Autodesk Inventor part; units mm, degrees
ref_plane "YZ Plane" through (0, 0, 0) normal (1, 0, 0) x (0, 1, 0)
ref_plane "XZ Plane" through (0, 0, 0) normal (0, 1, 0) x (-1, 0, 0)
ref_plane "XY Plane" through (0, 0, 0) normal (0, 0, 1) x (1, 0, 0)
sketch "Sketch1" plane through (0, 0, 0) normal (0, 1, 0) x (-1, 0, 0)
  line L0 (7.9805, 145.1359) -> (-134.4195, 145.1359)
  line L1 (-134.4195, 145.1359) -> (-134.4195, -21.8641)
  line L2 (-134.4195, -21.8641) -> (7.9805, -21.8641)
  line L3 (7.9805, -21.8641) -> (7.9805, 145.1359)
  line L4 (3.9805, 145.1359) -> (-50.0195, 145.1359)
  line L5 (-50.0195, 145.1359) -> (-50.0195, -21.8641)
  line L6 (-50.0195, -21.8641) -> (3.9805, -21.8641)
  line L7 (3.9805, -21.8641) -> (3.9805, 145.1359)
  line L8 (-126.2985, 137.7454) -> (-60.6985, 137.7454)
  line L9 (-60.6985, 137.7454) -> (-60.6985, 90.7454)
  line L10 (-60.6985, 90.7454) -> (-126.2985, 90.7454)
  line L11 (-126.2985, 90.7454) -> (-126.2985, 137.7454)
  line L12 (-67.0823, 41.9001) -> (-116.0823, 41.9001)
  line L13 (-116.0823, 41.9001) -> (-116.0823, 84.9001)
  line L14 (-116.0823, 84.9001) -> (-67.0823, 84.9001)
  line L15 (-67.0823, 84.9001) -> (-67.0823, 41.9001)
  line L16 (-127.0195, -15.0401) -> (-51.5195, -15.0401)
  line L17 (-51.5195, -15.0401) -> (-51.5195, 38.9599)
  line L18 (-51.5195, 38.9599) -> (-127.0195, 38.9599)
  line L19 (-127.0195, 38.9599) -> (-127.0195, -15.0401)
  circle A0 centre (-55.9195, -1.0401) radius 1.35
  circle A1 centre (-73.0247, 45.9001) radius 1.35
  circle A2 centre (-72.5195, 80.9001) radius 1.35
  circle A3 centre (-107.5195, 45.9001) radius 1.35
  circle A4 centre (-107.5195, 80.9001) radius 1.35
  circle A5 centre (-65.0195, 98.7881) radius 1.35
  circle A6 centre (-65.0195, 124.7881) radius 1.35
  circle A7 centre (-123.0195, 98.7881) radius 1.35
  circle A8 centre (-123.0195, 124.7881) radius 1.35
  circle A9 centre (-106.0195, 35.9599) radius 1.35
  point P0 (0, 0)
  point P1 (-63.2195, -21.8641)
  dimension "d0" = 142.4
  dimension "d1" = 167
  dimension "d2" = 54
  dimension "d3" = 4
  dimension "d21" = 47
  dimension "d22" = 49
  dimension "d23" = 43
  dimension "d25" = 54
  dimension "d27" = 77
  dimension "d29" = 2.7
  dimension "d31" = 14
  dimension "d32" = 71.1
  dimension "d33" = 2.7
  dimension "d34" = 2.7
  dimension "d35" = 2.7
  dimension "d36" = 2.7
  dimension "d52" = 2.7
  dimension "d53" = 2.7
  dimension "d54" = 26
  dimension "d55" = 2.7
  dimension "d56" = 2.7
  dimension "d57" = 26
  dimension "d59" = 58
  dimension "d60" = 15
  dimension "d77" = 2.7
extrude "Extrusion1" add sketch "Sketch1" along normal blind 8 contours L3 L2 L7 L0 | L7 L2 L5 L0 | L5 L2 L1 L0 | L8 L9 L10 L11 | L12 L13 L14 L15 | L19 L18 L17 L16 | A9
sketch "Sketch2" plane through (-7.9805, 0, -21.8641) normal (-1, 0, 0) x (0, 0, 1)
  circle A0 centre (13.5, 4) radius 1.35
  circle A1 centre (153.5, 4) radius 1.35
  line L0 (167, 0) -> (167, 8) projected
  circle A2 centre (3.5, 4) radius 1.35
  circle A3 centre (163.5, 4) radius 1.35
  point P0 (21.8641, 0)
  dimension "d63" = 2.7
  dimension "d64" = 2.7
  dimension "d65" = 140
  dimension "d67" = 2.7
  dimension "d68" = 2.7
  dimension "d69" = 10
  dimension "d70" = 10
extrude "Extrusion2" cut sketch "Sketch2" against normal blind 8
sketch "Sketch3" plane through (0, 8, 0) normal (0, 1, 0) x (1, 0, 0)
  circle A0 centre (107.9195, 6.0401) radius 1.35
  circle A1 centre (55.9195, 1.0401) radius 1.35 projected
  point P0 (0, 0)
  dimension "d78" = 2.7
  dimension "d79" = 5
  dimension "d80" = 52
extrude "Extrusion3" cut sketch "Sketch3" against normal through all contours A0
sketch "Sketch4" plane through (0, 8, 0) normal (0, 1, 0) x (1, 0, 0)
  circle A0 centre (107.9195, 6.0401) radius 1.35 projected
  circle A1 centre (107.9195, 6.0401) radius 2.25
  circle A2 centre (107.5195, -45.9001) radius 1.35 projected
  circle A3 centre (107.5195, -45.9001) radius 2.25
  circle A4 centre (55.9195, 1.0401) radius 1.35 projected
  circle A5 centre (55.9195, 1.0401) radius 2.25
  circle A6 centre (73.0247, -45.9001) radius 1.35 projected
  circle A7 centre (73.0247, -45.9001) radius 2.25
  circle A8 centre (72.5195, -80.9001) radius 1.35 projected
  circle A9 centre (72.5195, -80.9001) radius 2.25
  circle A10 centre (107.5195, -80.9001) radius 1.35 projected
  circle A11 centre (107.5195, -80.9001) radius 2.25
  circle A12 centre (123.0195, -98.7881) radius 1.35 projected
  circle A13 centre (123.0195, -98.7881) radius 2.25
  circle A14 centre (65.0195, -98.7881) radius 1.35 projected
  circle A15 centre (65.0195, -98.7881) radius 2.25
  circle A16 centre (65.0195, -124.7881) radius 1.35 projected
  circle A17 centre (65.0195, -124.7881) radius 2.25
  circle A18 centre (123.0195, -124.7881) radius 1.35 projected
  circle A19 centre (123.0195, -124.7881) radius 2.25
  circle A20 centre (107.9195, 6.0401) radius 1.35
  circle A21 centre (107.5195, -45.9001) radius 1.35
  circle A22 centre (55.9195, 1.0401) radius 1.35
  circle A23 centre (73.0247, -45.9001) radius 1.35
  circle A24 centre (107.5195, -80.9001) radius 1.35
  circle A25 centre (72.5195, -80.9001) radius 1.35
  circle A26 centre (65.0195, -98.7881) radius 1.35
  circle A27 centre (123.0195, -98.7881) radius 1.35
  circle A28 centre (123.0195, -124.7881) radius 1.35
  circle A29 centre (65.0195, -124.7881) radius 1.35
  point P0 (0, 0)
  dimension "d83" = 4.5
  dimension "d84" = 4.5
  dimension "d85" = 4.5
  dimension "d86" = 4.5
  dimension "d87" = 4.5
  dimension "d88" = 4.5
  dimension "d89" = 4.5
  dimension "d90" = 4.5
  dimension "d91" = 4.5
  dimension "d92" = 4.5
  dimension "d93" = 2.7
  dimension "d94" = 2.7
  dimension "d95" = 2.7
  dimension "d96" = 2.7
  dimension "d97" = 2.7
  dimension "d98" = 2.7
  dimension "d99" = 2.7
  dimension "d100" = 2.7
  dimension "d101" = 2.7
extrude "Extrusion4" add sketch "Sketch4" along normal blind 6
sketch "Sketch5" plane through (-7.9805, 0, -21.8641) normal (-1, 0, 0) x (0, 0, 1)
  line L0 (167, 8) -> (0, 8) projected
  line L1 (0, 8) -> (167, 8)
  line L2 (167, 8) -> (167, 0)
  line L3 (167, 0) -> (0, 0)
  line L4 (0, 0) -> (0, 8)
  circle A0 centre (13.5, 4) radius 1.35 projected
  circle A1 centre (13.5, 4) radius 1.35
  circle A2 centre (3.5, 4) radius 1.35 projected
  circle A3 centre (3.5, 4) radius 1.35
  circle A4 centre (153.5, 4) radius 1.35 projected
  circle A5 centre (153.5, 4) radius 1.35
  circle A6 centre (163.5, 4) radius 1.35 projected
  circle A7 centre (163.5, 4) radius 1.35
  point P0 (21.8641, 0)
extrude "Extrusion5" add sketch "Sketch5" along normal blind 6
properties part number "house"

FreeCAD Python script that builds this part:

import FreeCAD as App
import Part
import Sketcher


def add_polygon(sketch, points):
    """Adds a closed chain of lines whose ends are joined by coincident constraints."""
    first, n = sketch.GeometryCount, len(points)
    for a, b in zip(points, points[1:] + points[:1]):
        sketch.addGeometry(Part.LineSegment(App.Vector(*a, 0), App.Vector(*b, 0)), False)
    for i in range(n):
        sketch.addConstraint(Sketcher.Constraint("Coincident", first + i, 2, first + (i + 1) % n, 1))

doc = App.newDocument("Part")
body = doc.addObject("PartDesign::Body", "Body")

# Sketch on XZ plane
sketch1 = body.newObject("Sketcher::SketchObject", "Sketch")
sketch1.AttachmentSupport = (doc.getObject("XZ_Plane"), [""])
sketch1.MapMode = "FlatFace"
add_polygon(sketch1, [(-7.9805, -21.8641), (-7.9805, 145.1359), (134.4195, 145.1359), (134.4195, -21.8641)])  # lines 0-3
sketch1.addGeometry(Part.Circle(App.Vector(65.0195, 124.7881, 0), App.Vector(0, 0, 1), 1.35), False)  # 4
sketch1.addGeometry(Part.Circle(App.Vector(123.0195, 98.7881, 0), App.Vector(0, 0, 1), 1.35), False)  # 5
sketch1.addGeometry(Part.Circle(App.Vector(65.0195, 98.7881, 0), App.Vector(0, 0, 1), 1.35), False)  # 6
sketch1.addGeometry(Part.Circle(App.Vector(123.0195, 124.7881, 0), App.Vector(0, 0, 1), 1.35), False)  # 7
sketch1.addGeometry(Part.Circle(App.Vector(55.9195, -1.0401, 0), App.Vector(0, 0, 1), 1.35), False)  # 8
sketch1.addGeometry(Part.Circle(App.Vector(107.5195, 45.9001, 0), App.Vector(0, 0, 1), 1.35), False)  # 9
sketch1.addGeometry(Part.Circle(App.Vector(73.0247, 45.9001, 0), App.Vector(0, 0, 1), 1.35), False)  # 10
sketch1.addGeometry(Part.Circle(App.Vector(107.5195, 80.9001, 0), App.Vector(0, 0, 1), 1.35), False)  # 11
sketch1.addGeometry(Part.Circle(App.Vector(72.5195, 80.9001, 0), App.Vector(0, 0, 1), 1.35), False)  # 12
sketch1.addConstraint([
    Sketcher.Constraint("Vertical", 0),
    Sketcher.Constraint("Horizontal", 1),
    Sketcher.Constraint("Vertical", 2),
    Sketcher.Constraint("Horizontal", 3),
    Sketcher.Constraint("Equal", 4, 5),
    Sketcher.Constraint("Equal", 5, 6),
    Sketcher.Constraint("Equal", 6, 7),
    Sketcher.Constraint("Equal", 7, 8),
    Sketcher.Constraint("Equal", 8, 9),
    Sketcher.Constraint("Equal", 9, 10),
    Sketcher.Constraint("Equal", 10, 11),
    Sketcher.Constraint("Equal", 11, 12),
    Sketcher.Constraint("Horizontal", 5, 3, 6, 3),
    Sketcher.Constraint("Horizontal", 4, 3, 7, 3),
    Sketcher.Constraint("Horizontal", 9, 3, 10, 3),
    Sketcher.Constraint("Horizontal", 11, 3, 12, 3),
    Sketcher.Constraint("Vertical", 4, 3, 6, 3),
    Sketcher.Constraint("Vertical", 5, 3, 7, 3),
    Sketcher.Constraint("Vertical", 9, 3, 11, 3),
    Sketcher.Constraint("Diameter", 4, 2.7),
    Sketcher.Constraint("DistanceY", 0, 1, 0, 2, 167.0),
    Sketcher.Constraint("DistanceX", 1, 1, 1, 2, 142.4),
    Sketcher.Constraint("DistanceX", 4, 3, 5, 3, 58.0),
    Sketcher.Constraint("DistanceY", 5, 3, 4, 3, 26.0),
    Sketcher.Constraint("DistanceY", 9, 3, 11, 3, 35.0),
    Sketcher.Constraint("DistanceX", 12, 3, 11, 3, 35.0),
    Sketcher.Constraint("DistanceX", 0, 2, 4, 3, 73.0),
    Sketcher.Constraint("DistanceY", -1, 1, 9, 3, 45.9),
    Sketcher.Constraint("DistanceX", 8, 3, 6, 3, 9.1),
    Sketcher.Constraint("DistanceX", 9, 3, 5, 3, 15.5),
    Sketcher.Constraint("DistanceY", 8, 3, -1, 1, 1.04),
    Sketcher.Constraint("DistanceY", -1, 1, 4, 3, 124.788),
    Sketcher.Constraint("DistanceY", -1, 1, 0, 2, 145.136),
    Sketcher.Constraint("DistanceX", -1, 1, 4, 3, 65.0195),
    Sketcher.Constraint("DistanceX", -1, 1, 10, 3, 73.0247),
])
pad1 = body.newObject("PartDesign::Pad", "Pad")
pad1.Profile = sketch1
pad1.Length = 8
pad1.Reversed = True

# Sketch on YZ plane
sketch2 = body.newObject("Sketcher::SketchObject", "Sketch001")
sketch2.AttachmentSupport = (doc.getObject("YZ_Plane"), [""])
sketch2.MapMode = "FlatFace"
sketch2.AttachmentOffset = App.Placement(App.Vector(0, 0, -7.9805), App.Rotation())
sketch2.addGeometry([
    Part.Circle(App.Vector(4, -8.3641, 0), App.Vector(0, 0, 1), 1.35),
    Part.Circle(App.Vector(4, 131.6359, 0), App.Vector(0, 0, 1), 1.35),
    Part.Circle(App.Vector(4, -18.3641, 0), App.Vector(0, 0, 1), 1.35),
    Part.Circle(App.Vector(4, 141.6359, 0), App.Vector(0, 0, 1), 1.35),
], False)
sketch2.addConstraint([
    Sketcher.Constraint("Equal", 0, 1),
    Sketcher.Constraint("Equal", 1, 2),
    Sketcher.Constraint("Equal", 2, 3),
    Sketcher.Constraint("Vertical", 0, 3, 1, 3),
    Sketcher.Constraint("Vertical", 1, 3, 2, 3),
    Sketcher.Constraint("Vertical", 2, 3, 3, 3),
    Sketcher.Constraint("Diameter", 0, 2.7),
    Sketcher.Constraint("DistanceY", 0, 3, 1, 3, 140.0),
    Sketcher.Constraint("DistanceY", 2, 3, 0, 3, 10.0),
    Sketcher.Constraint("DistanceY", 1, 3, 3, 3, 10.0),
    Sketcher.Constraint("DistanceX", -1, 1, 0, 3, 4.0),
    Sketcher.Constraint("DistanceY", 0, 3, -1, 1, 8.364),
])
pocket1 = body.newObject("PartDesign::Pocket", "Pocket")
pocket1.Profile = sketch2
pocket1.Length = 8
pocket1.Reversed = True

# Sketch on XZ plane
sketch3 = body.newObject("Sketcher::SketchObject", "Sketch002")
sketch3.AttachmentSupport = (doc.getObject("XZ_Plane"), [""])
sketch3.MapMode = "FlatFace"
sketch3.AttachmentOffset = App.Placement(App.Vector(0, 0, -8), App.Rotation())
sketch3.addGeometry(Part.Circle(App.Vector(107.9195, -6.0401, 0), App.Vector(0, 0, 1), 1.35), False)
sketch3.addConstraint([
    Sketcher.Constraint("Diameter", 0, 2.7),
    Sketcher.Constraint("DistanceY", 0, 3, -1, 1, 6.04),
    Sketcher.Constraint("DistanceX", -1, 1, 0, 3, 107.9195),
])
pocket2 = body.newObject("PartDesign::Pocket", "Pocket001")
pocket2.Profile = sketch3
pocket2.Type = "ThroughAll"
pocket2.Reversed = True

# Sketch on XZ plane
sketch4 = body.newObject("Sketcher::SketchObject", "Sketch003")
sketch4.AttachmentSupport = (doc.getObject("XZ_Plane"), [""])
sketch4.MapMode = "FlatFace"
sketch4.AttachmentOffset = App.Placement(App.Vector(0, 0, -8), App.Rotation())
sketch4.addGeometry([
    Part.Circle(App.Vector(107.9195, -6.0401, 0), App.Vector(0, 0, 1), 2.25),  # 0
    Part.Circle(App.Vector(107.9195, -6.0401, 0), App.Vector(0, 0, 1), 1.35),  # 1
    Part.Circle(App.Vector(107.5195, 45.9001, 0), App.Vector(0, 0, 1), 2.25),  # 2
    Part.Circle(App.Vector(107.5195, 45.9001, 0), App.Vector(0, 0, 1), 1.35),  # 3
    Part.Circle(App.Vector(55.9195, -1.0401, 0), App.Vector(0, 0, 1), 2.25),  # 4
    Part.Circle(App.Vector(55.9195, -1.0401, 0), App.Vector(0, 0, 1), 1.35),  # 5
    Part.Circle(App.Vector(73.0247, 45.9001, 0), App.Vector(0, 0, 1), 2.25),  # 6
    Part.Circle(App.Vector(73.0247, 45.9001, 0), App.Vector(0, 0, 1), 1.35),  # 7
    Part.Circle(App.Vector(72.5195, 80.9001, 0), App.Vector(0, 0, 1), 2.25),  # 8
    Part.Circle(App.Vector(72.5195, 80.9001, 0), App.Vector(0, 0, 1), 1.35),  # 9
    Part.Circle(App.Vector(107.5195, 80.9001, 0), App.Vector(0, 0, 1), 2.25),  # 10
    Part.Circle(App.Vector(107.5195, 80.9001, 0), App.Vector(0, 0, 1), 1.35),  # 11
    Part.Circle(App.Vector(123.0195, 98.7881, 0), App.Vector(0, 0, 1), 2.25),  # 12
    Part.Circle(App.Vector(123.0195, 98.7881, 0), App.Vector(0, 0, 1), 1.35),  # 13
    Part.Circle(App.Vector(65.0195, 98.7881, 0), App.Vector(0, 0, 1), 2.25),  # 14
    Part.Circle(App.Vector(65.0195, 98.7881, 0), App.Vector(0, 0, 1), 1.35),  # 15
    Part.Circle(App.Vector(65.0195, 124.7881, 0), App.Vector(0, 0, 1), 2.25),  # 16
    Part.Circle(App.Vector(65.0195, 124.7881, 0), App.Vector(0, 0, 1), 1.35),  # 17
    Part.Circle(App.Vector(123.0195, 124.7881, 0), App.Vector(0, 0, 1), 2.25),  # 18
    Part.Circle(App.Vector(123.0195, 124.7881, 0), App.Vector(0, 0, 1), 1.35),  # 19
], False)
sketch4.addConstraint([
    Sketcher.Constraint("Coincident", 1, 3, 0, 3),
    Sketcher.Constraint("Coincident", 3, 3, 2, 3),
    Sketcher.Constraint("Coincident", 5, 3, 4, 3),
    Sketcher.Constraint("Coincident", 7, 3, 6, 3),
    Sketcher.Constraint("Coincident", 9, 3, 8, 3),
    Sketcher.Constraint("Coincident", 11, 3, 10, 3),
    Sketcher.Constraint("Coincident", 13, 3, 12, 3),
    Sketcher.Constraint("Coincident", 15, 3, 14, 3),
    Sketcher.Constraint("Coincident", 17, 3, 16, 3),
    Sketcher.Constraint("Coincident", 19, 3, 18, 3),
    Sketcher.Constraint("Equal", 0, 2),
    Sketcher.Constraint("Equal", 1, 3),
    Sketcher.Constraint("Equal", 2, 4),
    Sketcher.Constraint("Equal", 3, 5),
    Sketcher.Constraint("Equal", 4, 6),
    Sketcher.Constraint("Equal", 5, 7),
    Sketcher.Constraint("Equal", 6, 8),
    Sketcher.Constraint("Equal", 7, 9),
    Sketcher.Constraint("Equal", 8, 10),
    Sketcher.Constraint("Equal", 9, 11),
    Sketcher.Constraint("Equal", 10, 12),
    Sketcher.Constraint("Equal", 11, 13),
    Sketcher.Constraint("Equal", 12, 14),
    Sketcher.Constraint("Equal", 13, 15),
    Sketcher.Constraint("Equal", 14, 16),
    Sketcher.Constraint("Equal", 15, 17),
    Sketcher.Constraint("Equal", 16, 18),
    Sketcher.Constraint("Equal", 17, 19),
    Sketcher.Constraint("Horizontal", 3, 3, 6, 3),
    Sketcher.Constraint("Horizontal", 9, 3, 10, 3),
    Sketcher.Constraint("Horizontal", 13, 3, 14, 3),
    Sketcher.Constraint("Horizontal", 17, 3, 18, 3),
    Sketcher.Constraint("Vertical", 3, 3, 10, 3),
    Sketcher.Constraint("Vertical", 15, 3, 16, 3),
    Sketcher.Constraint("Vertical", 13, 3, 18, 3),
    Sketcher.Constraint("Diameter", 0, 4.5),
    Sketcher.Constraint("Diameter", 1, 2.7),
    Sketcher.Constraint("DistanceX", 4, 3, 0, 3, 52.0),
    Sketcher.Constraint("DistanceY", 0, 3, 4, 3, 5.0),
    Sketcher.Constraint("DistanceY", 6, 3, 8, 3, 35.0),
    Sketcher.Constraint("DistanceX", 8, 3, 2, 3, 35.0),
    Sketcher.Constraint("DistanceY", 14, 3, 16, 3, 26.0),
    Sketcher.Constraint("DistanceX", 16, 3, 18, 3, 58.0),
    Sketcher.Constraint("DistanceY", -1, 1, 2, 3, 45.9),
    Sketcher.Constraint("DistanceX", 2, 3, 0, 3, 0.4),
    Sketcher.Constraint("DistanceX", 10, 3, 12, 3, 15.5),
    Sketcher.Constraint("DistanceY", 0, 3, -1, 1, 6.04),
    Sketcher.Constraint("DistanceY", -1, 1, 12, 3, 98.788),
    Sketcher.Constraint("DistanceX", -1, 1, 0, 3, 107.9195),
    Sketcher.Constraint("DistanceX", -1, 1, 6, 3, 73.0247),
])
pad2 = body.newObject("PartDesign::Pad", "Pad001")
pad2.Profile = sketch4
pad2.Length = 6
pad2.Reversed = True

# Sketch on YZ plane
sketch5 = body.newObject("Sketcher::SketchObject", "Sketch004")
sketch5.AttachmentSupport = (doc.getObject("YZ_Plane"), [""])
sketch5.MapMode = "FlatFace"
sketch5.AttachmentOffset = App.Placement(App.Vector(0, 0, -7.9805), App.Rotation())
add_polygon(sketch5, [(0, 145.1359), (8, 145.1359), (8, -21.8641), (0, -21.8641)])  # lines 0-3
sketch5.addGeometry(Part.Circle(App.Vector(4, -18.3641, 0), App.Vector(0, 0, 1), 1.35), False)  # 4
sketch5.addGeometry(Part.Circle(App.Vector(4, -8.3641, 0), App.Vector(0, 0, 1), 1.35), False)  # 5
sketch5.addGeometry(Part.Circle(App.Vector(4, 131.6359, 0), App.Vector(0, 0, 1), 1.35), False)  # 6
sketch5.addGeometry(Part.Circle(App.Vector(4, 141.6359, 0), App.Vector(0, 0, 1), 1.35), False)  # 7
sketch5.addConstraint([
    Sketcher.Constraint("Horizontal", 0),
    Sketcher.Constraint("Vertical", 1),
    Sketcher.Constraint("Horizontal", 2),
    Sketcher.Constraint("Vertical", 3),
    Sketcher.Constraint("Equal", 4, 5),
    Sketcher.Constraint("Equal", 5, 6),
    Sketcher.Constraint("Equal", 6, 7),
    Sketcher.Constraint("PointOnObject", 2, 2, -2),
    Sketcher.Constraint("Vertical", 4, 3, 5, 3),
    Sketcher.Constraint("Vertical", 5, 3, 6, 3),
    Sketcher.Constraint("Vertical", 6, 3, 7, 3),
    Sketcher.Constraint("Diameter", 4, 2.7),
    Sketcher.Constraint("DistanceX", 0, 1, 0, 2, 8.0),
    Sketcher.Constraint("DistanceY", 1, 2, 1, 1, 167.0),
    Sketcher.Constraint("DistanceX", -1, 1, 4, 3, 4.0),
    Sketcher.Constraint("DistanceY", 4, 3, 5, 3, 10.0),
    Sketcher.Constraint("DistanceY", 5, 3, 6, 3, 140.0),
    Sketcher.Constraint("DistanceY", 6, 3, 7, 3, 10.0),
    Sketcher.Constraint("DistanceY", 7, 3, 0, 2, 3.5),
    Sketcher.Constraint("DistanceY", 4, 3, -1, 1, 18.364),
])
pad3 = body.newObject("PartDesign::Pad", "Pad002")
pad3.Profile = sketch5
pad3.Length = 6
pad3.Reversed = True

doc.recompute()
